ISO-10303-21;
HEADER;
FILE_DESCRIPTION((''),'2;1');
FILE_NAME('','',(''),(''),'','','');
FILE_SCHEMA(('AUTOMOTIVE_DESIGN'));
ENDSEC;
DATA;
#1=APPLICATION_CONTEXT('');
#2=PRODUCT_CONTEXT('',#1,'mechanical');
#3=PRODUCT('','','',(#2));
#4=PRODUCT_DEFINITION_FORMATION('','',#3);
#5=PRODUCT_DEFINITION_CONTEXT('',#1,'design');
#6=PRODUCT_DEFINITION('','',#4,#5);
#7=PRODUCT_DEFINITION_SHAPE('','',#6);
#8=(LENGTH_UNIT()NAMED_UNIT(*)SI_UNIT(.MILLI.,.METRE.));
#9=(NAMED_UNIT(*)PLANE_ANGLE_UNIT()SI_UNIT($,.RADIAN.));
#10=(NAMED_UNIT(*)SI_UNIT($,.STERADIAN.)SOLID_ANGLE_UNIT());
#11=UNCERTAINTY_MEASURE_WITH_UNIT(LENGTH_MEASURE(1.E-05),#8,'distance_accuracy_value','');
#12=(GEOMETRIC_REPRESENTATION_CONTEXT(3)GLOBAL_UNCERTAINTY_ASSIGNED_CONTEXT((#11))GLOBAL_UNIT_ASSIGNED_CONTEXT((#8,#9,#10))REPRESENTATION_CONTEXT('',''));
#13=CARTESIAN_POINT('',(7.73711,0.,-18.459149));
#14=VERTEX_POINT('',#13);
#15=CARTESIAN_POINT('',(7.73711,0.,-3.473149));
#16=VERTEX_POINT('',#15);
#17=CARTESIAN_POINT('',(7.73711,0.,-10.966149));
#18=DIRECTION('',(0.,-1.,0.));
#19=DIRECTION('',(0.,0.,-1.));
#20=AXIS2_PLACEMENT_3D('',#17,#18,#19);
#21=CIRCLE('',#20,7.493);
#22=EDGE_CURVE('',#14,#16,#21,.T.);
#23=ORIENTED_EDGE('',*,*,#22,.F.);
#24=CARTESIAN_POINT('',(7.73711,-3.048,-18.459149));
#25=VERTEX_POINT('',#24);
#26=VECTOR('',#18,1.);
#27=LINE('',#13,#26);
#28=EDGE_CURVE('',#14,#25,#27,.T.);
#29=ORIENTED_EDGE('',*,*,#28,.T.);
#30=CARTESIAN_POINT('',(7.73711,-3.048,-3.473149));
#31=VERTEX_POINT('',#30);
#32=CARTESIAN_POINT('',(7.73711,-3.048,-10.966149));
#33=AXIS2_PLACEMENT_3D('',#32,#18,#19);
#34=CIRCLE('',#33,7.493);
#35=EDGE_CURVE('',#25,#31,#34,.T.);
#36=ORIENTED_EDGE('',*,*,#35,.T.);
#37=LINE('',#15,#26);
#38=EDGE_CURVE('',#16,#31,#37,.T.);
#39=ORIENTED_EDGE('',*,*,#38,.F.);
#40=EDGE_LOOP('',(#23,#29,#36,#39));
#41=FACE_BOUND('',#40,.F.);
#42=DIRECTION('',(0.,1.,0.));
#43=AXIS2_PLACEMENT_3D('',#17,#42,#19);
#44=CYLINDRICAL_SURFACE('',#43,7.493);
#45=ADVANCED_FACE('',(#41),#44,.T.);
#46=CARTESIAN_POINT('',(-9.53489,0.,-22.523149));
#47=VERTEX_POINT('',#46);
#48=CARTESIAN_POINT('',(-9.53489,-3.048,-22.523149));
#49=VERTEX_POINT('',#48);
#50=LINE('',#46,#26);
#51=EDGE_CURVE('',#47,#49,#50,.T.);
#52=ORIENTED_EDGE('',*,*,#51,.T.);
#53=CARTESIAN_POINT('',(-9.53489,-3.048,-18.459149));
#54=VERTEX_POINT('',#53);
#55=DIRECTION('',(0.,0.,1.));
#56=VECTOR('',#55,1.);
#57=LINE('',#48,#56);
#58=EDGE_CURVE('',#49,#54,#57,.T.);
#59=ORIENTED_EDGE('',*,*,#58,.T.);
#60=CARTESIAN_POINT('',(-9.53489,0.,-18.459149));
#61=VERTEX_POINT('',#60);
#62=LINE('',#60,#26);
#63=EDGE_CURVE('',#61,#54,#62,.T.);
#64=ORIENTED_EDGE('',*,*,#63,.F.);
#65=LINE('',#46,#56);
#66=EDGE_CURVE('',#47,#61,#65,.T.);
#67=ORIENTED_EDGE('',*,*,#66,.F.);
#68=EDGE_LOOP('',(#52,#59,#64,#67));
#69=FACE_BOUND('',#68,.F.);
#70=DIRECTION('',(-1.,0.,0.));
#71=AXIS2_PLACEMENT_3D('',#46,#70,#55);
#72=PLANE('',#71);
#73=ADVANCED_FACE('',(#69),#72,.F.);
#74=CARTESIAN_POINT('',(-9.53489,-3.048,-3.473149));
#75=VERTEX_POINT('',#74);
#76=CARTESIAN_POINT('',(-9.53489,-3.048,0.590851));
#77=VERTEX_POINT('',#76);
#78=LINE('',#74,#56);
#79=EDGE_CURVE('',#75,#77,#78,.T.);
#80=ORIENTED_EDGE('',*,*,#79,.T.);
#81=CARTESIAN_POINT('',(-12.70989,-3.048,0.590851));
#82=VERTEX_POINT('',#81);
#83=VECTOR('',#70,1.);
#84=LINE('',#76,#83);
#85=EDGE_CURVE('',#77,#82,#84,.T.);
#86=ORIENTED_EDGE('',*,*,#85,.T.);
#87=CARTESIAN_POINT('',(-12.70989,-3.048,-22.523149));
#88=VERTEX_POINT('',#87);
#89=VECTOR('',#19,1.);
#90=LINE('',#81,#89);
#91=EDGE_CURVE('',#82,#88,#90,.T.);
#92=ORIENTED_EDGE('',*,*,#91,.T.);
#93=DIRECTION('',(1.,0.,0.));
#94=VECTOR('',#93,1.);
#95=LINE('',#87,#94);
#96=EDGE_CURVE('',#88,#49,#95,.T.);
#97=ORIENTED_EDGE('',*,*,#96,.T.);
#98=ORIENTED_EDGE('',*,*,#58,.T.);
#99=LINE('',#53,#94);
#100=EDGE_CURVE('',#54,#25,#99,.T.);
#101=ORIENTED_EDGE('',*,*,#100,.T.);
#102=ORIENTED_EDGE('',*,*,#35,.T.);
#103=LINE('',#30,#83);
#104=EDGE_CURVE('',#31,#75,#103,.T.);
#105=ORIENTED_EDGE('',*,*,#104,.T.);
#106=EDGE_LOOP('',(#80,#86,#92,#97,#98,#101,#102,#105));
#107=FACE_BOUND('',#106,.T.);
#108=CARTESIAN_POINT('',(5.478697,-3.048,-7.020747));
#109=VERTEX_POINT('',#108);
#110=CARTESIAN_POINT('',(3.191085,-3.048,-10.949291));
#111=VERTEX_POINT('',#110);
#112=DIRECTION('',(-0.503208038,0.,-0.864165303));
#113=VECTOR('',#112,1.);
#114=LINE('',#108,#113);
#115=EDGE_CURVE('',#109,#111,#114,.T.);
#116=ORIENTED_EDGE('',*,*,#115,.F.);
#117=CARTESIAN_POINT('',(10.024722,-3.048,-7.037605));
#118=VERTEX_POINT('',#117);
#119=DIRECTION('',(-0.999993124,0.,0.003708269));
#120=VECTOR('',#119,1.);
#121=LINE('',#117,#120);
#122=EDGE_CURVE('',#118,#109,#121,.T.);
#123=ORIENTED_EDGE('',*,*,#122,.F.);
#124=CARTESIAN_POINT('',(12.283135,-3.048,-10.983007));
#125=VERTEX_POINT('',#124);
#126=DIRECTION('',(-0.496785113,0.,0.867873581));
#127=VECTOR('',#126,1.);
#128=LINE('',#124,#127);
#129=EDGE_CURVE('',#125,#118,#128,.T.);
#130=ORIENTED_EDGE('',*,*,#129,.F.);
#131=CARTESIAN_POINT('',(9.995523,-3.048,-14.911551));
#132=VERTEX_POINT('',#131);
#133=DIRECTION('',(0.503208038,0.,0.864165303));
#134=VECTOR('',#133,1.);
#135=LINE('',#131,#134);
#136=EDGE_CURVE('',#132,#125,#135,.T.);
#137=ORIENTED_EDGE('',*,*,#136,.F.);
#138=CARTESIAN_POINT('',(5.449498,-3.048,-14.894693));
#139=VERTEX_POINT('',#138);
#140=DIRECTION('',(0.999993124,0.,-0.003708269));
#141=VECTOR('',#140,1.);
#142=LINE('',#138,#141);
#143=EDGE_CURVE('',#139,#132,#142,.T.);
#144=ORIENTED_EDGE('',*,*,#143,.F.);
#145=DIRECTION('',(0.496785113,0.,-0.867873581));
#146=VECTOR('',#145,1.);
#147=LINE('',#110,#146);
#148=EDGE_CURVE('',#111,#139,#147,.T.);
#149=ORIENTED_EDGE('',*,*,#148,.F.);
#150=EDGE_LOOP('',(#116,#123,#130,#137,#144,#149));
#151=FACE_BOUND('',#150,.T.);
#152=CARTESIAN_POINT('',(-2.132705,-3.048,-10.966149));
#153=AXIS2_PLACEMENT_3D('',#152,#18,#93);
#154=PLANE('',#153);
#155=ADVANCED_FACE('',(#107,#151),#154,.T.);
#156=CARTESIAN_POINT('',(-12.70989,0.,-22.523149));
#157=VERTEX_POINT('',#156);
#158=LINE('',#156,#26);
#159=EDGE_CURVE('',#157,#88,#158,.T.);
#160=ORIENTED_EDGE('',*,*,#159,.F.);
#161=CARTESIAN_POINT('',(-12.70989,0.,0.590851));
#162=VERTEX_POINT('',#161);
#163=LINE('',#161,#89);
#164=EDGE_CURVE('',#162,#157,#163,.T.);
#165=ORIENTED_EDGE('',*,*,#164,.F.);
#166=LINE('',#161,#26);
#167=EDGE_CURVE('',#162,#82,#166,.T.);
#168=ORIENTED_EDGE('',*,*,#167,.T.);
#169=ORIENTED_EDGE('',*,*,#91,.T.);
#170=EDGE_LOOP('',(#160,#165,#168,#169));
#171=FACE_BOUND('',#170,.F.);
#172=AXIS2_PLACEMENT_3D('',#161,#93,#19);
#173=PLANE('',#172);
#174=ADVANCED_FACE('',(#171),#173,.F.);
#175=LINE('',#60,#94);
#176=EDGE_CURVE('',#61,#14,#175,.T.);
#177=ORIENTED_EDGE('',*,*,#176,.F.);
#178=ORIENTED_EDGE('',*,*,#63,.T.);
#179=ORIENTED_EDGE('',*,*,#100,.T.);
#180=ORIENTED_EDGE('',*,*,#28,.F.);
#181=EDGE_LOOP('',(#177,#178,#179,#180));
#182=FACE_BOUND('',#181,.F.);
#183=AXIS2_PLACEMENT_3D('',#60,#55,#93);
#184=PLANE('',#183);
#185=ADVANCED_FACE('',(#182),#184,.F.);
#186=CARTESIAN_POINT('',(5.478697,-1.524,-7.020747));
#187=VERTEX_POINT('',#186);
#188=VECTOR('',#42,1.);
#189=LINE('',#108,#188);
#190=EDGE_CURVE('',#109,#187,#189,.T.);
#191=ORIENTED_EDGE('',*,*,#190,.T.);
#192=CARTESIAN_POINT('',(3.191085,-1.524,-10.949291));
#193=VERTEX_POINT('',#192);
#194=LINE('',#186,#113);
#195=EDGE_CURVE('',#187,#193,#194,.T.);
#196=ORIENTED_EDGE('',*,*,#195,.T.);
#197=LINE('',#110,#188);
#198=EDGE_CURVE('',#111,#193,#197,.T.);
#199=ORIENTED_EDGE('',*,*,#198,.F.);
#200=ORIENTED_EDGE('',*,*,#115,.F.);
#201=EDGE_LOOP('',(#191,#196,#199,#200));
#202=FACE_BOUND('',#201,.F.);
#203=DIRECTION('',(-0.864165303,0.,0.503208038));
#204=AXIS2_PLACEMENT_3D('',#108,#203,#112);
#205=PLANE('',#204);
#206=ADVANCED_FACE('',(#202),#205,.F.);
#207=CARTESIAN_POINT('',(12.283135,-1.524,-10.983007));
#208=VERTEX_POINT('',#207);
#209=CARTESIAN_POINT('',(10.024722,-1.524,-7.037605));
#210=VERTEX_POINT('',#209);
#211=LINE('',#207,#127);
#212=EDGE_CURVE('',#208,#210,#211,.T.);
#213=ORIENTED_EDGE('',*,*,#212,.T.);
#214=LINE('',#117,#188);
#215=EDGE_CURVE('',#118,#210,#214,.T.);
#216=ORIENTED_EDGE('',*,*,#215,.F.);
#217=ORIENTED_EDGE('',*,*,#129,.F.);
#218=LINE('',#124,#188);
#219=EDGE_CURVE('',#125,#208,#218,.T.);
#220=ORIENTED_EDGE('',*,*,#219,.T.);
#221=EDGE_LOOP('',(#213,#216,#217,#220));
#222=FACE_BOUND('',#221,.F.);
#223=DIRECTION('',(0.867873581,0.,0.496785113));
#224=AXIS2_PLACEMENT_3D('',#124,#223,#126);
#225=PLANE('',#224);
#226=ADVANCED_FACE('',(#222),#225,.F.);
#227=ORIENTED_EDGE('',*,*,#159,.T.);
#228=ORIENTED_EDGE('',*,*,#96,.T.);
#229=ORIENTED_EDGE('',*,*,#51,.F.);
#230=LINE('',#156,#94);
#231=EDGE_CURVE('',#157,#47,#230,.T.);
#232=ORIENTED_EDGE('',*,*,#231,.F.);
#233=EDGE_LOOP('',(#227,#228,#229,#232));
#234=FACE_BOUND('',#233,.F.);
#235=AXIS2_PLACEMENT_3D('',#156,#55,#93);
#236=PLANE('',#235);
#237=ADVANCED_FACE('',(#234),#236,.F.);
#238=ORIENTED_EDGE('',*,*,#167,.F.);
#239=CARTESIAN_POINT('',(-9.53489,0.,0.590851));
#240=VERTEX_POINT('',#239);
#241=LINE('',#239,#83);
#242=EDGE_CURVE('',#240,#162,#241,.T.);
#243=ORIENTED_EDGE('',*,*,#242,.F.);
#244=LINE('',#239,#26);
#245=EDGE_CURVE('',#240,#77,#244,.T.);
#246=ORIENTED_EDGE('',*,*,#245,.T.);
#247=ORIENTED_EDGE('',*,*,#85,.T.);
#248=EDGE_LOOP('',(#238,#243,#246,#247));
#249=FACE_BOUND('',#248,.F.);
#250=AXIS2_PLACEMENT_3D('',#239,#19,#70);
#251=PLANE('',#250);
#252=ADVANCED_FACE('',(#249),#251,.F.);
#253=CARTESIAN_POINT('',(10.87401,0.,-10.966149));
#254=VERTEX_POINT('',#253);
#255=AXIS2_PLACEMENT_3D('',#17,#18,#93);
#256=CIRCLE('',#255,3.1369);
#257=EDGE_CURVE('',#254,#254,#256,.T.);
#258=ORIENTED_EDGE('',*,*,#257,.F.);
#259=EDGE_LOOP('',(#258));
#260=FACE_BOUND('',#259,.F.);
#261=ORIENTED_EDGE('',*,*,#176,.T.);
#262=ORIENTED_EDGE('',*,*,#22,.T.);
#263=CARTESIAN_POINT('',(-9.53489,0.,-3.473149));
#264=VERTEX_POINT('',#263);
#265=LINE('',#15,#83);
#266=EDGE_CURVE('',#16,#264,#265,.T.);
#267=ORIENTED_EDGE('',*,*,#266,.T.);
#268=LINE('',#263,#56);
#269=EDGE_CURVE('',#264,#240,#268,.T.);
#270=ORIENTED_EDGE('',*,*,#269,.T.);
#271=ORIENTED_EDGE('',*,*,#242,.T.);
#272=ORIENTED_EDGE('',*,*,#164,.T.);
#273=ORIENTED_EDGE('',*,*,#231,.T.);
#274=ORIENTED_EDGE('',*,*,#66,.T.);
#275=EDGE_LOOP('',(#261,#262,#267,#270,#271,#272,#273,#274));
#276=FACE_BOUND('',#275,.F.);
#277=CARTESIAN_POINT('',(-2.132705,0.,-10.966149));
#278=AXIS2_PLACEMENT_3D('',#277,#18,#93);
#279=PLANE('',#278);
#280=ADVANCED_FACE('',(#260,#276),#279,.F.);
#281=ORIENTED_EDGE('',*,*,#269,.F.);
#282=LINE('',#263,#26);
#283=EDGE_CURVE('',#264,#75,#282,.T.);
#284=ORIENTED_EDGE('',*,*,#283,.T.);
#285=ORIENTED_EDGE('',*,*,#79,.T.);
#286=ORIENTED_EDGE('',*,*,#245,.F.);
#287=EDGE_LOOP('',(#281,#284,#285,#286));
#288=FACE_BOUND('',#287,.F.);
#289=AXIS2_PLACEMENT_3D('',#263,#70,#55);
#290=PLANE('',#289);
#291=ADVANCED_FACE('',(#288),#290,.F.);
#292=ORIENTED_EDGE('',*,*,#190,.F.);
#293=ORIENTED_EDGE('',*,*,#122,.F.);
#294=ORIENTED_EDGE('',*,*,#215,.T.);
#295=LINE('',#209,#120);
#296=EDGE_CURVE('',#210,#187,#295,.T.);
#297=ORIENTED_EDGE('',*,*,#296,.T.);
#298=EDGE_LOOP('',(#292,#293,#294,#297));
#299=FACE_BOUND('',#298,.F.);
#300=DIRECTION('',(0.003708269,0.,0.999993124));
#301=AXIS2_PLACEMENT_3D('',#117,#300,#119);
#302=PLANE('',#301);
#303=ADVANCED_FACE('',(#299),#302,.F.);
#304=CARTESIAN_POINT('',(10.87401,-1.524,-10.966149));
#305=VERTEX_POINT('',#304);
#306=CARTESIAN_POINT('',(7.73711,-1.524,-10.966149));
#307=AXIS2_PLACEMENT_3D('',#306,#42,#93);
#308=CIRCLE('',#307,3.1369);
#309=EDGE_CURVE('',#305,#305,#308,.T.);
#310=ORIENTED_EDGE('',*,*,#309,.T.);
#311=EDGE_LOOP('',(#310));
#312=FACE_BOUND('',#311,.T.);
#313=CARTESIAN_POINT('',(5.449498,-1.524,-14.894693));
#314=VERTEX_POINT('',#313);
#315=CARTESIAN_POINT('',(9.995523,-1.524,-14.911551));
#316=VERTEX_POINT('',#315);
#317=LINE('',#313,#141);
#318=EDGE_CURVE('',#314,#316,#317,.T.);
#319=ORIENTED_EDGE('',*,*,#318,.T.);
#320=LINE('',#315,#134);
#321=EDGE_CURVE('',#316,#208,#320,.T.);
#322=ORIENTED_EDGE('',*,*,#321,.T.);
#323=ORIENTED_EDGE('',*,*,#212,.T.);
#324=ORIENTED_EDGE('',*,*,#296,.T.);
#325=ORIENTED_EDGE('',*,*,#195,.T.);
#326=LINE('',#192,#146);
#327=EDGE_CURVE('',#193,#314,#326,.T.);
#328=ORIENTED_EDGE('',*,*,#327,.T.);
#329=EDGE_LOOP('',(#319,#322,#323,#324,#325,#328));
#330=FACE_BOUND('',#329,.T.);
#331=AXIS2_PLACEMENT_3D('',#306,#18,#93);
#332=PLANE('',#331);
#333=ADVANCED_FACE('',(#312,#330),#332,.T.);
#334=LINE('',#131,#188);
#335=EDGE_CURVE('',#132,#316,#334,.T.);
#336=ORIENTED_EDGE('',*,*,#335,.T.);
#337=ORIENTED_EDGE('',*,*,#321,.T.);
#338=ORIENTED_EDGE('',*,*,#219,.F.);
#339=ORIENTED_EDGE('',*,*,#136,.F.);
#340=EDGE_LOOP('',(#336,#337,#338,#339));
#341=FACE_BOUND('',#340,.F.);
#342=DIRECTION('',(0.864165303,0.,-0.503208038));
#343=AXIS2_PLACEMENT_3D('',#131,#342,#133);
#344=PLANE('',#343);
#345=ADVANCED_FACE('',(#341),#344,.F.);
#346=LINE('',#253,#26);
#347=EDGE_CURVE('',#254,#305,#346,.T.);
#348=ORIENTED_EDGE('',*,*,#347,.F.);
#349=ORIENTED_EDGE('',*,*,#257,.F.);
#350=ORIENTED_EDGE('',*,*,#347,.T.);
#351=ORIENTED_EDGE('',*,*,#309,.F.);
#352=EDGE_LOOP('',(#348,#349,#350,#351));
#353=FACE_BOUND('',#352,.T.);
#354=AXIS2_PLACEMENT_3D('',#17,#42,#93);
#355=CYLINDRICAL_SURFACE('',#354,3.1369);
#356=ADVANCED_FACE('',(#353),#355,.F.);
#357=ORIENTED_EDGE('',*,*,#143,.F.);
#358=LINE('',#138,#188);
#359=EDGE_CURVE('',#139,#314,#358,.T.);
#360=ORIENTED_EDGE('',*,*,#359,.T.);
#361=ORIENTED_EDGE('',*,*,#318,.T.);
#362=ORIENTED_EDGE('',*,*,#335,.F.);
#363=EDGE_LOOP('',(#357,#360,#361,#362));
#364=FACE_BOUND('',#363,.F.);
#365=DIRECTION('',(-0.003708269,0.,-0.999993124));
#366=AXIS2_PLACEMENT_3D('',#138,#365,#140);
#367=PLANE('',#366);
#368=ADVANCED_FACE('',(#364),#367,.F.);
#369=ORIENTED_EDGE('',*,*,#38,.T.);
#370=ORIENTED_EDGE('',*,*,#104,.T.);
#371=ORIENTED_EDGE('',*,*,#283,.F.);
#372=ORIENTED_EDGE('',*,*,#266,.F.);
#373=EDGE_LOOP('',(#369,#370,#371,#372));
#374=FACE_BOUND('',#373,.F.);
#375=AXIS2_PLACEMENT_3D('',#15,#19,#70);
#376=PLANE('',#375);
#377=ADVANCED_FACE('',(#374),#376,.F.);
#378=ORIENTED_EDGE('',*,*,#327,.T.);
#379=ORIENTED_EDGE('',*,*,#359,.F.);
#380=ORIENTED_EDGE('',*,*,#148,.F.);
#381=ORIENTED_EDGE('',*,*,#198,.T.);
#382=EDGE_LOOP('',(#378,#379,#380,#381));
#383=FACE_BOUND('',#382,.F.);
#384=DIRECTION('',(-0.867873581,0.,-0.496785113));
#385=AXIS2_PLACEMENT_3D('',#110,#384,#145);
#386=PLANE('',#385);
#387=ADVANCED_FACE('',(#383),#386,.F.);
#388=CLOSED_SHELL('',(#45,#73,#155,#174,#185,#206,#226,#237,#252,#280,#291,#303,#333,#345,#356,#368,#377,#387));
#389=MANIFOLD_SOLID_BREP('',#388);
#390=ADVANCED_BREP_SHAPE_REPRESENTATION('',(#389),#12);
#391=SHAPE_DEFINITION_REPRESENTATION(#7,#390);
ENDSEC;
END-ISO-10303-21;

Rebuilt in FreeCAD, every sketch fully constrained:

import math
import FreeCAD as App
import Part
import Sketcher

V = App.Vector
Q = App.Units.Quantity

doc = App.newDocument("Part")
body = doc.addObject("PartDesign::Body", "Body")

# Sketch on XZ plane
sketch1 = body.newObject("Sketcher::SketchObject", "Sketch")
sketch1.AttachmentSupport = (doc.getObject("XZ_Plane"), [""])
sketch1.MapMode = "FlatFace"
sketch1.addGeometry([
    Part.LineSegment(V(-9.5, 0.6, 0), V(-12.7, 0.6, 0)),  # 0
    Part.LineSegment(V(-12.7, 0.6, 0), V(-12.7, -22.5, 0)),  # 1
    Part.LineSegment(V(-12.7, -22.5, 0), V(-9.5, -22.5, 0)),  # 2
    Part.LineSegment(V(-9.5, -22.5, 0), V(-9.5, -18.5, 0)),  # 3
    Part.LineSegment(V(-9.5, -18.5, 0), V(7.7, -18.5, 0)),  # 4
    Part.ArcOfCircle(Part.Circle(V(7.7, -11, 0), V(0, 0, 1), 7.5), math.radians(-90), math.radians(90)),  # 5
    Part.LineSegment(V(7.7, -3.5, 0), V(-9.5, -3.5, 0)),  # 6
    Part.LineSegment(V(-9.5, -3.5, 0), V(-9.5, 0.6, 0)),  # 7
    Part.Circle(V(7.7, -11, 0), V(0, 0, 1), 3.1),  # 8
], False)
sketch1.addConstraint([
    Sketcher.Constraint("Coincident", 0, 2, 1, 1),
    Sketcher.Constraint("Coincident", 1, 2, 2, 1),
    Sketcher.Constraint("Coincident", 2, 2, 3, 1),
    Sketcher.Constraint("Coincident", 3, 2, 4, 1),
    Sketcher.Constraint("Tangent", 4, 2, 5, 1),
    Sketcher.Constraint("Tangent", 5, 2, 6, 1),
    Sketcher.Constraint("Coincident", 6, 2, 7, 1),
    Sketcher.Constraint("Coincident", 7, 2, 0, 1),
    Sketcher.Constraint("Horizontal", 0),
    Sketcher.Constraint("Vertical", 1),
    Sketcher.Constraint("Horizontal", 2),
    Sketcher.Constraint("Vertical", 3),
    Sketcher.Constraint("Horizontal", 4),
    Sketcher.Constraint("Horizontal", 6),
    Sketcher.Constraint("Vertical", 7),
    Sketcher.Constraint("Coincident", 8, 3, 5, 3),
    Sketcher.Constraint("Vertical", 3, 2, 6, 2),
    Sketcher.Constraint("Equal", 3, 7),
    Sketcher.Constraint("Diameter", 8, Q("0.247 in")),
    Sketcher.Constraint("Radius", 5, Q("0.295 in")),
    Sketcher.Constraint("DistanceX", 4, 1, 4, 2, Q("0.68 in")),
    Sketcher.Constraint("DistanceY", 1, 2, 1, 1, Q("0.91 in")),
    Sketcher.Constraint("DistanceX", 0, 2, 0, 1, Q("0.125 in")),
    Sketcher.Constraint("DistanceX", -1, 1, 5, 3, 7.73711),
    Sketcher.Constraint("DistanceY", 5, 3, -1, 1, 10.966149),
])
pad1 = body.newObject("PartDesign::Pad", "Pad")
pad1.Profile = sketch1
pad1.Length = Q("0.12 in")

# Sketch on XZ plane
sketch2 = body.newObject("Sketcher::SketchObject", "Sketch001")
sketch2.AttachmentSupport = (doc.getObject("XZ_Plane"), [""])
sketch2.MapMode = "FlatFace"
sketch2.AttachmentOffset = App.Placement(V(0, 0, 0.12 * 25.4), App.Rotation())
sketch2.addGeometry([
    Part.LineSegment(V(5.5, -7, 0), V(3.2, -10.9, 0)),  # 0
    Part.LineSegment(V(3.2, -10.9, 0), V(5.4, -14.9, 0)),  # 1
    Part.LineSegment(V(5.4, -14.9, 0), V(10, -14.9, 0)),  # 2
    Part.LineSegment(V(10, -14.9, 0), V(12.3, -11, 0)),  # 3
    Part.LineSegment(V(12.3, -11, 0), V(10, -7, 0)),  # 4
    Part.LineSegment(V(10, -7, 0), V(5.5, -7, 0)),  # 5
], False)
sketch2.addConstraint([
    Sketcher.Constraint("Coincident", 0, 2, 1, 1),
    Sketcher.Constraint("Coincident", 1, 2, 2, 1),
    Sketcher.Constraint("Coincident", 2, 2, 3, 1),
    Sketcher.Constraint("Coincident", 3, 2, 4, 1),
    Sketcher.Constraint("Coincident", 4, 2, 5, 1),
    Sketcher.Constraint("Coincident", 5, 2, 0, 1),
    Sketcher.Constraint("Parallel", 0, 3),
    Sketcher.Constraint("Parallel", 1, 4),
    Sketcher.Constraint("Parallel", 2, 5),
    Sketcher.Constraint("Equal", 0, 1),
    Sketcher.Constraint("Equal", 1, 2),
    Sketcher.Constraint("Equal", 2, 3),
    Sketcher.Constraint("DistanceX", -1, 1, 1, 2, 5.449498),
    Sketcher.Constraint("DistanceY", 1, 2, 0, 2, 3.945402),
    Sketcher.Constraint("DistanceX", 2, 2, 4, 2, 0.029199),
    Sketcher.Constraint("DistanceY", 0, 2, -1, 1, 10.949291),
    Sketcher.Constraint("DistanceY", 2, 2, -1, 1, 14.911551),
    Sketcher.Constraint("DistanceX", 0, 2, 2, 2, 6.804438),
])
pocket1 = body.newObject("PartDesign::Pocket", "Pocket")
pocket1.Profile = sketch2
pocket1.Length = Q("0.06 in")

doc.recompute()
